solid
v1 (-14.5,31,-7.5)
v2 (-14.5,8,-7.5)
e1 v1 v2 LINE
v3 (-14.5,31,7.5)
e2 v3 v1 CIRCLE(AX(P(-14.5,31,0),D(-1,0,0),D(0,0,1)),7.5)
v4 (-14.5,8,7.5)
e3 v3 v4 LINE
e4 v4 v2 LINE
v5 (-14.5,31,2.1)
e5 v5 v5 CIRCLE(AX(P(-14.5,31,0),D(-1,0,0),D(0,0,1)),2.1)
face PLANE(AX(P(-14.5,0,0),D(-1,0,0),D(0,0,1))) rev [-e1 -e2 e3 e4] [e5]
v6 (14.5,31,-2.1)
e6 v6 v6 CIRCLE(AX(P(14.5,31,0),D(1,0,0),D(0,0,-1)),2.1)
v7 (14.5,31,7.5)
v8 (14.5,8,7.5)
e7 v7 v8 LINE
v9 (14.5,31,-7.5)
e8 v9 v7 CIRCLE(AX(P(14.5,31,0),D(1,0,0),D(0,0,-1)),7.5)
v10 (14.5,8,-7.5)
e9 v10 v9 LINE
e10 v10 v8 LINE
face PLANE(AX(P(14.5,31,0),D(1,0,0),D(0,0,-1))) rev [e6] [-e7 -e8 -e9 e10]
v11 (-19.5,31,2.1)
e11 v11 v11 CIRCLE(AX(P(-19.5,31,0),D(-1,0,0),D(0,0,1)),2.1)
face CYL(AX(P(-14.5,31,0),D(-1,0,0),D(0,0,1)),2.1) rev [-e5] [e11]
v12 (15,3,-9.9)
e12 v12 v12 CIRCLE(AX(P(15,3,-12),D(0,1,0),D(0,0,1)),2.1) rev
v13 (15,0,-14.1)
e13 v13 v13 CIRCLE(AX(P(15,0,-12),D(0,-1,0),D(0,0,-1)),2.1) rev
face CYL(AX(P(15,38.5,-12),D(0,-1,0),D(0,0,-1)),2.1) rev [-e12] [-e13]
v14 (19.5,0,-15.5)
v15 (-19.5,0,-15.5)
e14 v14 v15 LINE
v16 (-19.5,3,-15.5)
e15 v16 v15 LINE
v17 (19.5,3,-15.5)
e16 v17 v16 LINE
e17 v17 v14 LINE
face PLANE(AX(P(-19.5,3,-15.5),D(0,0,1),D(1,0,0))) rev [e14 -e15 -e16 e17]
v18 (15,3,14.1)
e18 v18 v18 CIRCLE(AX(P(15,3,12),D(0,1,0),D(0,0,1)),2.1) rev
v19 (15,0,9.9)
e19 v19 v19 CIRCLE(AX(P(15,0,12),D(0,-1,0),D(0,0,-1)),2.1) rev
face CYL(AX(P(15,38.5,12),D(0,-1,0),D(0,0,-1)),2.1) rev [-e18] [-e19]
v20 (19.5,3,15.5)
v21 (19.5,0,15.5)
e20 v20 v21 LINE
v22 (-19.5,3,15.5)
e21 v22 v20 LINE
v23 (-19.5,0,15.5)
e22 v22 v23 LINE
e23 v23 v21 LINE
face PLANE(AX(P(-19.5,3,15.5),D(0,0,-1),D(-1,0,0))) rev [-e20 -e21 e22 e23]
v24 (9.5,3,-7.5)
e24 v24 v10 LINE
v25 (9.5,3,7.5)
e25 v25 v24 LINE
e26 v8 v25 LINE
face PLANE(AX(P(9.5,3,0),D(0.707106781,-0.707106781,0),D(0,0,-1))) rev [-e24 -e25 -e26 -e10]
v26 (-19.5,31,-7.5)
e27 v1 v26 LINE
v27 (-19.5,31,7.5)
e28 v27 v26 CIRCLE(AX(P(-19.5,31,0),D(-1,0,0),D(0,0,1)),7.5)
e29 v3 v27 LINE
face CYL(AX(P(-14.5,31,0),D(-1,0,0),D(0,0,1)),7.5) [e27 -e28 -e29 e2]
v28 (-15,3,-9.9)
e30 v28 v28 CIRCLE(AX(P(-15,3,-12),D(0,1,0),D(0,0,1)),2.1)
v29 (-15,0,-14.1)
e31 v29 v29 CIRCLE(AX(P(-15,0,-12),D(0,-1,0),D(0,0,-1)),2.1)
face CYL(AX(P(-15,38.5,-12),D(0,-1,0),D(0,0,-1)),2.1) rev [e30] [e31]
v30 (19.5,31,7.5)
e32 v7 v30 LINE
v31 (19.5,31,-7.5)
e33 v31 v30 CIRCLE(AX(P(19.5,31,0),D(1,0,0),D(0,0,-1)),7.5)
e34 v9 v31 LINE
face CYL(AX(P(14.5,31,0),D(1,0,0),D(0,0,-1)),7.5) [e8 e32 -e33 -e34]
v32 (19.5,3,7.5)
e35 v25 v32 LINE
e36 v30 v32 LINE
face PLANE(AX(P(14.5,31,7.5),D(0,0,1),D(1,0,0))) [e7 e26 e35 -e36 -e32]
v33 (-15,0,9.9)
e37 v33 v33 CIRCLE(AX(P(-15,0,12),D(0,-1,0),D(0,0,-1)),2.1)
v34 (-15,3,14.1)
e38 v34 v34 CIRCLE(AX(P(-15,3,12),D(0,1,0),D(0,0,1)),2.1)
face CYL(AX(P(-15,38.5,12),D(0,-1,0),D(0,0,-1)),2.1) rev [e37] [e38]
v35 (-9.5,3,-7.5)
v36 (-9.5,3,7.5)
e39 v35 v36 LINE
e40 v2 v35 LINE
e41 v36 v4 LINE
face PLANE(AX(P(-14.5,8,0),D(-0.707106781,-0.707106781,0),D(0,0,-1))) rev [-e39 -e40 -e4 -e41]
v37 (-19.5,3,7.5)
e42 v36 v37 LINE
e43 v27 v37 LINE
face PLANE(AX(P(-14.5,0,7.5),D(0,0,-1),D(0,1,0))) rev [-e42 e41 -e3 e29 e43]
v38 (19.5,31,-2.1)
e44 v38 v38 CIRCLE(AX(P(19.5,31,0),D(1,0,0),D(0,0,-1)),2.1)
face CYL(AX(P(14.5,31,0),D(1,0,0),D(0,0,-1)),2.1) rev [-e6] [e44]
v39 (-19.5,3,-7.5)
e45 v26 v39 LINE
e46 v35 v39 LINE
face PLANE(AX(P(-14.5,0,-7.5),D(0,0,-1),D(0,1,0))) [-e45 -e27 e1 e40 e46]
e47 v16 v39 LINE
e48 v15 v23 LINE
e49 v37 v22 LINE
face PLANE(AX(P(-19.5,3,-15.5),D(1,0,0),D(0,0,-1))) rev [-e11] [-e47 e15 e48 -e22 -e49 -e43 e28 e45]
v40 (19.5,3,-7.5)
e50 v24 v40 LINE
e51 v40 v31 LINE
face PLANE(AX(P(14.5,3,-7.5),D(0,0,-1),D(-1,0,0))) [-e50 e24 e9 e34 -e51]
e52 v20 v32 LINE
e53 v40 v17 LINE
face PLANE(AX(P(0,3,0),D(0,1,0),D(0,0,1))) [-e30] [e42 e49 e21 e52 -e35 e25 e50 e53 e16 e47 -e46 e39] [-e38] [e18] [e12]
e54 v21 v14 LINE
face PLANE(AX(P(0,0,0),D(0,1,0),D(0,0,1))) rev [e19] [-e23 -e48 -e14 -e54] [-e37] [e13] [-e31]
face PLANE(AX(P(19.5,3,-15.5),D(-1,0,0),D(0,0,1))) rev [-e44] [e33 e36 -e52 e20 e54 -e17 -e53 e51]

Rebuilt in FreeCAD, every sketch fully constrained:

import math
import FreeCAD as App
import Part
import Sketcher

V = App.Vector
Q = App.Units.Quantity


def edges_at(feature, points):
    """Names of the edges that pass closest to the given points."""
    edges = feature.Shape.Edges
    near = lambda p: min(range(len(edges)), key=lambda i: edges[i].distToShape(Part.Vertex(*p))[0])
    return sorted({f"Edge{near(p) + 1}" for p in points})

doc = App.newDocument("Part")
params = doc.addObject("Spreadsheet::Sheet", "Params")
for row, (alias, value) in enumerate([
    ("sketch1_width", "39 mm"),
    ("sketch1_height", "31 mm"),
    ("pad1_length", "3 mm"),
    ("sketch2_diameter", "4.2 mm"),
    ("sketch2_radius", "7.5 mm"),
    ("sketch2_width", "28 mm"),
    ("pad2_length", "5 mm"),
    ("sketch3_diameter", "4.2 mm"),
    ("sketch3_radius", "7.5 mm"),
    ("sketch3_width", "28 mm"),
    ("pad3_length", "5 mm"),
    ("sketch4_diameter", "4.2 mm"),
    ("chamfer_size", "5 mm"),
], start=1):
    params.set(f"A{row}", alias)
    params.set(f"B{row}", "=" + value)
    params.setAlias(f"B{row}", alias)

body = doc.addObject("PartDesign::Body", "Body")

# Sketch on XZ plane
sketch1 = body.newObject("Sketcher::SketchObject", "Sketch")
sketch1.AttachmentSupport = (doc.getObject("XZ_Plane"), [""])
sketch1.MapMode = "FlatFace"
sketch1.addGeometry(Part.LineSegment(V(-20, -16, 0), V(-20, 16, 0)), False)
sketch1.addGeometry(Part.LineSegment(V(-20, 16, 0), V(20, 16, 0)), False)
sketch1.addGeometry(Part.LineSegment(V(20, 16, 0), V(20, -16, 0)), False)
sketch1.addGeometry(Part.LineSegment(V(20, -16, 0), V(-20, -16, 0)), False)
sketch1.addConstraint(Sketcher.Constraint("Coincident", 0, 2, 1, 1))
sketch1.addConstraint(Sketcher.Constraint("Coincident", 1, 2, 2, 1))
sketch1.addConstraint(Sketcher.Constraint("Coincident", 2, 2, 3, 1))
sketch1.addConstraint(Sketcher.Constraint("Coincident", 3, 2, 0, 1))
sketch1.addConstraint(Sketcher.Constraint("Vertical", 0))
sketch1.addConstraint(Sketcher.Constraint("Horizontal", 1))
sketch1.addConstraint(Sketcher.Constraint("Vertical", 2))
sketch1.addConstraint(Sketcher.Constraint("Horizontal", 3))
sketch1.addConstraint(Sketcher.Constraint("Symmetric", 0, 2, 2, 2, -1, 1))
sketch1.addConstraint(Sketcher.Constraint("DistanceX", 1, 1, 1, 2, Q("39 mm")))
sketch1.addConstraint(Sketcher.Constraint("DistanceY", 0, 1, 0, 2, Q("31 mm")))
sketch1.setExpression("Constraints[9]", "Params.sketch1_width")
sketch1.setExpression("Constraints[10]", "Params.sketch1_height")
pad1 = body.newObject("PartDesign::Pad", "Pad")
pad1.Profile = sketch1
pad1.setExpression("Length", "Params.pad1_length")
pad1.Reversed = True

# Sketch on YZ plane
sketch2 = body.newObject("Sketcher::SketchObject", "Sketch001")
sketch2.AttachmentSupport = (doc.getObject("YZ_Plane"), [""])
sketch2.MapMode = "FlatFace"
sketch2.AttachmentOffset = App.Placement(V(0, 0, -19.5), App.Rotation())
sketch2.addGeometry(Part.ArcOfCircle(Part.Circle(V(31, 0, 0), V(0, 0, 1), 7.5), math.radians(-90), math.radians(90)), False)
sketch2.addGeometry(Part.LineSegment(V(31, -7.5, 0), V(3, -7.5, 0)), False)
sketch2.addGeometry(Part.LineSegment(V(3, -7.5, 0), V(3, 7.5, 0)), False)
sketch2.addGeometry(Part.LineSegment(V(3, 7.5, 0), V(31, 7.5, 0)), False)
sketch2.addGeometry(Part.Circle(V(31, 0, 0), V(0, 0, 1), 2.1), False)
sketch2.addConstraint(Sketcher.Constraint("Tangent", 0, 1, 1, 1))
sketch2.addConstraint(Sketcher.Constraint("Coincident", 1, 2, 2, 1))
sketch2.addConstraint(Sketcher.Constraint("Coincident", 2, 2, 3, 1))
sketch2.addConstraint(Sketcher.Constraint("Tangent", 3, 2, 0, 2))
sketch2.addConstraint(Sketcher.Constraint("Horizontal", 1))
sketch2.addConstraint(Sketcher.Constraint("Vertical", 2))
sketch2.addConstraint(Sketcher.Constraint("Horizontal", 3))
sketch2.addConstraint(Sketcher.Constraint("Coincident", 4, 3, 0, 3))
sketch2.addConstraint(Sketcher.Constraint("PointOnObject", 0, 3, -1))
sketch2.addConstraint(Sketcher.Constraint("Diameter", 4, Q("4.2 mm")))
sketch2.addConstraint(Sketcher.Constraint("Radius", 0, Q("7.5 mm")))
sketch2.addConstraint(Sketcher.Constraint("DistanceX", 1, 2, 1, 1, Q("28 mm")))
sketch2.addConstraint(Sketcher.Constraint("DistanceX", -1, 1, 0, 3, Q("31 mm")))
sketch2.setExpression("Constraints[9]", "Params.sketch2_diameter")
sketch2.setExpression("Constraints[10]", "Params.sketch2_radius")
sketch2.setExpression("Constraints[11]", "Params.sketch2_width")
pad2 = body.newObject("PartDesign::Pad", "Pad001")
pad2.Profile = sketch2
pad2.setExpression("Length", "Params.pad2_length")

# Sketch on YZ plane
sketch3 = body.newObject("Sketcher::SketchObject", "Sketch002")
sketch3.AttachmentSupport = (doc.getObject("YZ_Plane"), [""])
sketch3.MapMode = "FlatFace"
sketch3.AttachmentOffset = App.Placement(V(0, 0, 14.5), App.Rotation())
sketch3.addGeometry(Part.LineSegment(V(31, 7.5, 0), V(3, 7.5, 0)), False)
sketch3.addGeometry(Part.LineSegment(V(3, 7.5, 0), V(3, -7.5, 0)), False)
sketch3.addGeometry(Part.LineSegment(V(3, -7.5, 0), V(31, -7.5, 0)), False)
sketch3.addGeometry(Part.ArcOfCircle(Part.Circle(V(31, 0, 0), V(0, 0, 1), 7.5), math.radians(-90), math.radians(90)), False)
sketch3.addGeometry(Part.Circle(V(31, 0, 0), V(0, 0, 1), 2.1), False)
sketch3.addConstraint(Sketcher.Constraint("Coincident", 0, 2, 1, 1))
sketch3.addConstraint(Sketcher.Constraint("Coincident", 1, 2, 2, 1))
sketch3.addConstraint(Sketcher.Constraint("Tangent", 2, 2, 3, 1))
sketch3.addConstraint(Sketcher.Constraint("Tangent", 3, 2, 0, 1))
sketch3.addConstraint(Sketcher.Constraint("Horizontal", 0))
sketch3.addConstraint(Sketcher.Constraint("Vertical", 1))
sketch3.addConstraint(Sketcher.Constraint("Horizontal", 2))
sketch3.addConstraint(Sketcher.Constraint("Coincident", 4, 3, 3, 3))
sketch3.addConstraint(Sketcher.Constraint("PointOnObject", 3, 3, -1))
sketch3.addConstraint(Sketcher.Constraint("Diameter", 4, Q("4.2 mm")))
sketch3.addConstraint(Sketcher.Constraint("Radius", 3, Q("7.5 mm")))
sketch3.addConstraint(Sketcher.Constraint("DistanceX", 0, 2, 0, 1, Q("28 mm")))
sketch3.addConstraint(Sketcher.Constraint("DistanceX", -1, 1, 3, 3, Q("31 mm")))
sketch3.setExpression("Constraints[9]", "Params.sketch3_diameter")
sketch3.setExpression("Constraints[10]", "Params.sketch3_radius")
sketch3.setExpression("Constraints[11]", "Params.sketch3_width")
pad3 = body.newObject("PartDesign::Pad", "Pad002")
pad3.Profile = sketch3
pad3.setExpression("Length", "Params.pad3_length")

# Sketch on XZ plane
sketch4 = body.newObject("Sketcher::SketchObject", "Sketch003")
sketch4.AttachmentSupport = (doc.getObject("XZ_Plane"), [""])
sketch4.MapMode = "FlatFace"
sketch4.addGeometry(Part.Circle(V(15, 12, 0), V(0, 0, 1), 2.1), False)
sketch4.addGeometry(Part.Circle(V(15, -12, 0), V(0, 0, 1), 2.1), False)
sketch4.addGeometry(Part.Circle(V(-15, 12, 0), V(0, 0, 1), 2.1), False)
sketch4.addGeometry(Part.Circle(V(-15, -12, 0), V(0, 0, 1), 2.1), False)
sketch4.addConstraint(Sketcher.Constraint("Equal", 0, 1))
sketch4.addConstraint(Sketcher.Constraint("Equal", 1, 2))
sketch4.addConstraint(Sketcher.Constraint("Equal", 2, 3))
sketch4.addConstraint(Sketcher.Constraint("Symmetric", 1, 3, 2, 3, -1, 1))
sketch4.addConstraint(Sketcher.Constraint("Symmetric", 0, 3, 3, 3, -1, 1))
sketch4.addConstraint(Sketcher.Constraint("Symmetric", 0, 3, 2, 3, -2))
sketch4.addConstraint(Sketcher.Constraint("Diameter", 0, Q("4.2 mm")))
sketch4.addConstraint(Sketcher.Constraint("DistanceX", -1, 1, 0, 3, Q("15 mm")))
sketch4.addConstraint(Sketcher.Constraint("DistanceY", -1, 1, 0, 3, Q("12 mm")))
sketch4.setExpression("Constraints[6]", "Params.sketch4_diameter")
pocket1 = body.newObject("PartDesign::Pocket", "Pocket")
pocket1.Profile = sketch4
pocket1.Type = "ThroughAll"
doc.recompute()

chamfer = body.newObject("PartDesign::Chamfer", "Chamfer")
chamfer.Base = (pocket1, edges_at(pocket1, [(-14.5, 3, 0), (14.5, 3, 0)]))
chamfer.setExpression("Size", "Params.chamfer_size")

doc.recompute()
